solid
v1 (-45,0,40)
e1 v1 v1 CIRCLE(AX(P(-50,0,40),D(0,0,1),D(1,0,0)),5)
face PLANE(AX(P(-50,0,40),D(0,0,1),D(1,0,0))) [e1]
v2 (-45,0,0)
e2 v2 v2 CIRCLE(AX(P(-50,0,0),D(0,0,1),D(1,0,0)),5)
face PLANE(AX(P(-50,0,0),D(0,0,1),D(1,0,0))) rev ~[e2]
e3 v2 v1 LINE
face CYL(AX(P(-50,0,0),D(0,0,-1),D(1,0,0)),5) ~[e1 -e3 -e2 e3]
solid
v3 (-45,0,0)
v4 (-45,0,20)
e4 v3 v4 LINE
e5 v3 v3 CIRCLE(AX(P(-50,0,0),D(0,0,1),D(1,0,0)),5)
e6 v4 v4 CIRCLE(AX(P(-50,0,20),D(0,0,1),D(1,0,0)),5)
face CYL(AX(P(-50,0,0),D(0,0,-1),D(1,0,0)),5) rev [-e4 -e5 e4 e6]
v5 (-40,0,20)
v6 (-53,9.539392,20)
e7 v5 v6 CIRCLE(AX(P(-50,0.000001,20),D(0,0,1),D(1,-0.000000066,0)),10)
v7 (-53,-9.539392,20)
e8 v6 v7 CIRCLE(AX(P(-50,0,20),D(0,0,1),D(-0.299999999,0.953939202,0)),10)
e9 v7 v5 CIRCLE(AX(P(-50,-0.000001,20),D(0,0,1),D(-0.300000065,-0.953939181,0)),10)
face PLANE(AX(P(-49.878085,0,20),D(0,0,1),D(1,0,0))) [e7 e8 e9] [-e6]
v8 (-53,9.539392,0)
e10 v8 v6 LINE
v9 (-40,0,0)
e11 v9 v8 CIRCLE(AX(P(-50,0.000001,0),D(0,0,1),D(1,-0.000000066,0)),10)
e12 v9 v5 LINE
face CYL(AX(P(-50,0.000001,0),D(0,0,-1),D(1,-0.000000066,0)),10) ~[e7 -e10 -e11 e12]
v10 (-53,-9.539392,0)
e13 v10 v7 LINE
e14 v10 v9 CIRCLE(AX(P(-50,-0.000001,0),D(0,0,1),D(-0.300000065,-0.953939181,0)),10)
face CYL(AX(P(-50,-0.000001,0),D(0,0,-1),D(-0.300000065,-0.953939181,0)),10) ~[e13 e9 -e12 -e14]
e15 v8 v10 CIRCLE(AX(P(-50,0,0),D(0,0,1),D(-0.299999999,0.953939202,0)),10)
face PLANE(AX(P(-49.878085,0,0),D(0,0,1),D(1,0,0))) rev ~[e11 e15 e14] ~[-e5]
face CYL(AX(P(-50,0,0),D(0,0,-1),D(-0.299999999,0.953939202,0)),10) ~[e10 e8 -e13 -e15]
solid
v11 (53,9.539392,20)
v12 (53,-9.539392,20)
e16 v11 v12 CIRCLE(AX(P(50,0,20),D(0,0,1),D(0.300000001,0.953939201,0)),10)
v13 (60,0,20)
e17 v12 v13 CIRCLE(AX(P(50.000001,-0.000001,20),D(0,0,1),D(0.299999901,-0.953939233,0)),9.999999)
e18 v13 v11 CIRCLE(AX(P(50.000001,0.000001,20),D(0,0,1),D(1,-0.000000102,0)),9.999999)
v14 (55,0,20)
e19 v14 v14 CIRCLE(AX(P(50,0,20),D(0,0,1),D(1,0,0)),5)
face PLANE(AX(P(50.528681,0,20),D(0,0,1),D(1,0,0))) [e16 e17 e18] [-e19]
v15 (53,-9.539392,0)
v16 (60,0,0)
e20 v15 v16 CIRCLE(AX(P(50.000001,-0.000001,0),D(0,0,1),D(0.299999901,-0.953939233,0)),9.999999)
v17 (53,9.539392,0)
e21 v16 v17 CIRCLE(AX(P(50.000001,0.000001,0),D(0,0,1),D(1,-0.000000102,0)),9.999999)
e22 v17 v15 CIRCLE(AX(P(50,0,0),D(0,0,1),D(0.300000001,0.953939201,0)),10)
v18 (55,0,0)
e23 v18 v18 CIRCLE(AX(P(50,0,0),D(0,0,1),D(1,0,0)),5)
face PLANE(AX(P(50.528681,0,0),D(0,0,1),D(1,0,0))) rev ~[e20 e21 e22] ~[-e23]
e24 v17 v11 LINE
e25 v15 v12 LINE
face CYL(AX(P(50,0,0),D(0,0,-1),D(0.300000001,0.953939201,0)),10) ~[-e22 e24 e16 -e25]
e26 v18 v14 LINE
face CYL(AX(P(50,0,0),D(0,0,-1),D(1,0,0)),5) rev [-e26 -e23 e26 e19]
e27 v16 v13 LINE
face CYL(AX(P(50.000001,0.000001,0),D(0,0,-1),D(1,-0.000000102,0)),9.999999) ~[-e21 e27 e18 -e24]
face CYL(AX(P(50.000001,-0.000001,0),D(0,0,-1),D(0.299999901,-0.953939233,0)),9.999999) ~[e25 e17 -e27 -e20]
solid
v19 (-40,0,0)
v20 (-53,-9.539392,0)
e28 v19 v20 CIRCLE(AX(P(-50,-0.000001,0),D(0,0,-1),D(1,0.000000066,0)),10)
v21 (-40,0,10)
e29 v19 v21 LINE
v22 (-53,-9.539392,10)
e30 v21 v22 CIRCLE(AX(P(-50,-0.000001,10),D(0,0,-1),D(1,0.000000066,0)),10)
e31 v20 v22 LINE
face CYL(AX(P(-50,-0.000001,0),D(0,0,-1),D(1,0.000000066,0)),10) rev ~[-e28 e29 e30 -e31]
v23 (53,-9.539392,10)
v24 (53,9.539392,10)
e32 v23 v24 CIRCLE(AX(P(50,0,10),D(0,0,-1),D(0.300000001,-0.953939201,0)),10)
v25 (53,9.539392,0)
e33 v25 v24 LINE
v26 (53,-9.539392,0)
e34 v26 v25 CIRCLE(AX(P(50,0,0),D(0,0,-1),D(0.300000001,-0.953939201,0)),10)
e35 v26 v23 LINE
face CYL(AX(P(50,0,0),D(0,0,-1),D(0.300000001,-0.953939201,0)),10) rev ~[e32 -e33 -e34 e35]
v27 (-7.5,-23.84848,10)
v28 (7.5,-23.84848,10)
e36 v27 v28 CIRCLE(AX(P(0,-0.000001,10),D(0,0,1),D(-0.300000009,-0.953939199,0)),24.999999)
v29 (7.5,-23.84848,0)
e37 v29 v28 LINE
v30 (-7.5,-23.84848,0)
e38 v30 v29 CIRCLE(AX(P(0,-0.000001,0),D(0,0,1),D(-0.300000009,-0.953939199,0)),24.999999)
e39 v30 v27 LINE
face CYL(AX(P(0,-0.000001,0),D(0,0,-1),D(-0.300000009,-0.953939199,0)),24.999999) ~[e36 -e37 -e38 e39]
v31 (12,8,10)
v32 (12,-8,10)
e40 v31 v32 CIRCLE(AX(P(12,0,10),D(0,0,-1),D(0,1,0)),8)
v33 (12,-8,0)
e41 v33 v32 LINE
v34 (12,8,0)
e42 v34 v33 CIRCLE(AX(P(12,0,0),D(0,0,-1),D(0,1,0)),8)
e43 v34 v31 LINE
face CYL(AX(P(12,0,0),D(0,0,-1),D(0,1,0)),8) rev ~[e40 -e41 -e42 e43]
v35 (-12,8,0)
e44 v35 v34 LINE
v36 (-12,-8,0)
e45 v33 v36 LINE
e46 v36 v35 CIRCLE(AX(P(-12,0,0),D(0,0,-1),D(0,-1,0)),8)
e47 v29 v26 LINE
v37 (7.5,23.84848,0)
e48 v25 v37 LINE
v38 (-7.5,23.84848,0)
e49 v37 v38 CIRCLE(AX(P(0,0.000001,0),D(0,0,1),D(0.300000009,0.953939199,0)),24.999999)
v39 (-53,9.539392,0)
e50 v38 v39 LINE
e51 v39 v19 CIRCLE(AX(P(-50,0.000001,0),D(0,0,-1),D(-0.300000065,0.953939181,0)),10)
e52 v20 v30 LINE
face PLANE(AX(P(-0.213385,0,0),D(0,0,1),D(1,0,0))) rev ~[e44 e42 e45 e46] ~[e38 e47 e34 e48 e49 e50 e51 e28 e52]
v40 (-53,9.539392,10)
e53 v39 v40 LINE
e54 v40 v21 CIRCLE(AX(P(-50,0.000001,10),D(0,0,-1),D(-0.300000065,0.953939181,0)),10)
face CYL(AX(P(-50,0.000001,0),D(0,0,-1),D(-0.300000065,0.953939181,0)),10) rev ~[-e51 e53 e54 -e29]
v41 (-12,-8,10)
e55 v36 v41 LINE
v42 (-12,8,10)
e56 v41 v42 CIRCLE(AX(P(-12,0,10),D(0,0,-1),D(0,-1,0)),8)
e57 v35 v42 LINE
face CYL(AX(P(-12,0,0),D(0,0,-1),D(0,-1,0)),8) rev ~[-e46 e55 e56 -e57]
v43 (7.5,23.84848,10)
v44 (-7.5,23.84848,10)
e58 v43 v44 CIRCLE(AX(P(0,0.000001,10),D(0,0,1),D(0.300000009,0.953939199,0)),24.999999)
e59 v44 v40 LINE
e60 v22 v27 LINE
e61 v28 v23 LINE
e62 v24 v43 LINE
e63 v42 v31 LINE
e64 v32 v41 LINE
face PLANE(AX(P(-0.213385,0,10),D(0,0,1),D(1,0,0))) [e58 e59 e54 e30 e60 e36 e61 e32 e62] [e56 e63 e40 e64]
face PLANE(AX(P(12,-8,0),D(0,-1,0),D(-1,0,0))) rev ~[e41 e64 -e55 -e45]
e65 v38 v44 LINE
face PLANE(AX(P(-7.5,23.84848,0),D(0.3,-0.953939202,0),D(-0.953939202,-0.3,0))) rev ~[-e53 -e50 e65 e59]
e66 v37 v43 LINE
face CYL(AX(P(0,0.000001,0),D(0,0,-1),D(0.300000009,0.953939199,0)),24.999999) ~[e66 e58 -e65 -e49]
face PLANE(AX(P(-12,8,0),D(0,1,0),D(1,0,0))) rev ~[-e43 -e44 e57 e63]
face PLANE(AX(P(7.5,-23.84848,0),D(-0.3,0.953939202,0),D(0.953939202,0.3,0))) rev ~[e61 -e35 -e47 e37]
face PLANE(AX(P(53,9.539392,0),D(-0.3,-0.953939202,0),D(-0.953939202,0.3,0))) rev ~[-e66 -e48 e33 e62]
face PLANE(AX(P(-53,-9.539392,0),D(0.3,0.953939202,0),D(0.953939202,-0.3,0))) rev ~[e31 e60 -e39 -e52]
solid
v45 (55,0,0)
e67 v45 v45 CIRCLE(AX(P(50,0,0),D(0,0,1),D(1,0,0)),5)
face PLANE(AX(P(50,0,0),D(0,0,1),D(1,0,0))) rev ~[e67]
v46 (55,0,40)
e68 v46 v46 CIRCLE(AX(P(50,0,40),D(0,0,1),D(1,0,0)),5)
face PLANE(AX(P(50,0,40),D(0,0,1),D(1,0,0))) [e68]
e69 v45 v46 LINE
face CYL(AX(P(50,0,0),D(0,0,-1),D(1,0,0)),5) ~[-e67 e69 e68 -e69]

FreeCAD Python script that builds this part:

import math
import FreeCAD as App
import Part
import Sketcher

V = App.Vector
Q = App.Units.Quantity

doc = App.newDocument("Part")
body = doc.addObject("PartDesign::Body", "Body")
body.AllowCompound = True

# Sketch on XY plane
sketch1 = body.newObject("Sketcher::SketchObject", "Sketch")
sketch1.AttachmentSupport = (doc.getObject("XY_Plane"), [""])
sketch1.MapMode = "FlatFace"
sketch1.addGeometry([
    Part.ArcOfCircle(Part.Circle(V(-50, 0, 0), V(0, 0, 1), 10), math.radians(107.457603), math.radians(252.542397)),  # 0
    Part.ArcOfCircle(Part.Circle(V(-50, -0.000001, 0), V(0, 0, 1), 10), math.radians(-107.457607), math.radians(0.000004)),  # 1
    Part.ArcOfCircle(Part.Circle(V(-50, 0.000001, 0), V(0, 0, 1), 10), math.radians(-0.000004), math.radians(107.457607)),  # 2
    Part.Circle(V(-50, 0, 0), V(0, 0, 1), 5),  # 3
    Part.ArcOfCircle(Part.Circle(V(50, 0, 0), V(0, 0, 1), 10), math.radians(72.542397), math.radians(287.457603)),  # 4
    Part.ArcOfCircle(Part.Circle(V(50.000001, -0.000001, 0), V(0, 0, 1), 9.999999), math.radians(-72.542403), math.radians(0.000006)),  # 5
    Part.ArcOfCircle(Part.Circle(V(50.000001, 0.000001, 0), V(0, 0, 1), 9.999999), math.radians(-0.000006), math.radians(72.542403)),  # 6
    Part.Circle(V(50, 0, 0), V(0, 0, 1), 5),  # 7
], False)
sketch1.addConstraint([
    Sketcher.Constraint("Tangent", 0, 2, 1, 1),
    Sketcher.Constraint("Tangent", 1, 2, 2, 1),
    Sketcher.Constraint("Tangent", 2, 2, 0, 1),
    Sketcher.Constraint("Tangent", 4, 2, 5, 1),
    Sketcher.Constraint("Tangent", 5, 2, 6, 1),
    Sketcher.Constraint("Tangent", 6, 2, 4, 1),
    Sketcher.Constraint("Coincident", 3, 3, 0, 3),
    Sketcher.Constraint("Coincident", 7, 3, 4, 3),
    Sketcher.Constraint("Equal", 2, 4),
    Sketcher.Constraint("Equal", 3, 7),
    Sketcher.Constraint("Symmetric", 0, 3, 4, 3, -1, 1),
    Sketcher.Constraint("Symmetric", 0, 2, 4, 2, -2),
    Sketcher.Constraint("PointOnObject", 1, 2, -1),
    Sketcher.Constraint("PointOnObject", 5, 2, -1),
    Sketcher.Constraint("Horizontal", 2, 2, 6, 2),
    Sketcher.Constraint("Vertical", 0, 2, 2, 2),
    Sketcher.Constraint("Diameter", 3, Q("10 mm")),
    Sketcher.Constraint("Radius", 0, Q("10 mm")),
    Sketcher.Constraint("DistanceX", 0, 3, -1, 1, Q("50 mm")),
    Sketcher.Constraint("DistanceX", 0, 2, -1, 1, Q("53 mm")),
])
pad1 = body.newObject("PartDesign::Pad", "Pad")
pad1.Profile = sketch1
pad1.Length = 20
body2 = doc.addObject("PartDesign::Body", "Body001")
body2.AllowCompound = True

# Sketch on XY plane
sketch2 = body2.newObject("Sketcher::SketchObject", "Sketch001")
sketch2.AttachmentSupport = (doc.getObject("XY_Plane001"), [""])
sketch2.MapMode = "FlatFace"
sketch2.addGeometry([
    Part.Circle(V(-50, 0, 0), V(0, 0, 1), 5),
    Part.Circle(V(50, 0, 0), V(0, 0, 1), 5),
], False)
sketch2.addConstraint([
    Sketcher.Constraint("Equal", 0, 1),
    Sketcher.Constraint("Symmetric", 0, 3, 1, 3, -1, 1),
    Sketcher.Constraint("PointOnObject", 0, 3, -1),
    Sketcher.Constraint("Diameter", 0, Q("10 mm")),
    Sketcher.Constraint("DistanceX", 0, 3, -1, 1, Q("50 mm")),
])
pad2 = body2.newObject("PartDesign::Pad", "Pad001")
pad2.Profile = sketch2
pad2.Length = 40
body3 = doc.addObject("PartDesign::Body", "Body002")

# Sketch on XY plane
sketch3 = body3.newObject("Sketcher::SketchObject", "Sketch002")
sketch3.AttachmentSupport = (doc.getObject("XY_Plane002"), [""])
sketch3.MapMode = "FlatFace"
sketch3.addGeometry([
    Part.LineSegment(V(-53, -9.539392, 0), V(-7.5, -23.84848, 0)),  # 0
    Part.ArcOfCircle(Part.Circle(V(0, -0.000001, 0), V(0, 0, 1), 24.999999), math.radians(-107.457604), math.radians(-72.542396)),  # 1
    Part.LineSegment(V(7.5, -23.84848, 0), V(53, -9.539392, 0)),  # 2
    Part.ArcOfCircle(Part.Circle(V(50, 0, 0), V(0, 0, 1), 10), math.radians(72.542397), math.radians(287.457603)),  # 3
    Part.LineSegment(V(53, 9.539392, 0), V(7.5, 23.84848, 0)),  # 4
    Part.ArcOfCircle(Part.Circle(V(0, 0.000001, 0), V(0, 0, 1), 24.999999), math.radians(72.542396), math.radians(107.457604)),  # 5
    Part.LineSegment(V(-7.5, 23.84848, 0), V(-53, 9.539392, 0)),  # 6
    Part.ArcOfCircle(Part.Circle(V(-50, 0.000001, 0), V(0, 0, 1), 10), math.radians(-0.000004), math.radians(107.457607)),  # 7
    Part.ArcOfCircle(Part.Circle(V(-50, -0.000001, 0), V(0, 0, 1), 10), math.radians(-107.457607), math.radians(0.000004)),  # 8
    Part.LineSegment(V(12, -8, 0), V(-12, -8, 0)),  # 9
    Part.ArcOfCircle(Part.Circle(V(-12, 0, 0), V(0, 0, 1), 8), math.radians(90), math.radians(270)),  # 10
    Part.LineSegment(V(-12, 8, 0), V(12, 8, 0)),  # 11
    Part.ArcOfCircle(Part.Circle(V(12, 0, 0), V(0, 0, 1), 8), math.radians(-90), math.radians(90)),  # 12
], False)
sketch3.addConstraint([
    Sketcher.Constraint("Tangent", 0, 2, 1, 1),
    Sketcher.Constraint("Tangent", 1, 2, 2, 1),
    Sketcher.Constraint("Tangent", 2, 2, 3, 2),
    Sketcher.Constraint("Tangent", 3, 1, 4, 1),
    Sketcher.Constraint("Tangent", 4, 2, 5, 1),
    Sketcher.Constraint("Tangent", 5, 2, 6, 1),
    Sketcher.Constraint("Tangent", 6, 2, 7, 2),
    Sketcher.Constraint("Tangent", 7, 1, 8, 2),
    Sketcher.Constraint("Tangent", 8, 1, 0, 1),
    Sketcher.Constraint("Tangent", 9, 2, 10, 2),
    Sketcher.Constraint("Tangent", 10, 1, 11, 1),
    Sketcher.Constraint("Tangent", 11, 2, 12, 2),
    Sketcher.Constraint("Tangent", 12, 1, 9, 1),
    Sketcher.Constraint("Horizontal", 9),
    Sketcher.Constraint("Horizontal", 11),
    Sketcher.Constraint("Coincident", 1, 3, -1, 1),
    Sketcher.Constraint("Coincident", 5, 3, -1, 1),
    Sketcher.Constraint("Equal", 1, 5),
    Sketcher.Constraint("Equal", 3, 7),
    Sketcher.Constraint("Equal", 7, 8),
    Sketcher.Constraint("Symmetric", 3, 3, 7, 3, -1, 1),
    Sketcher.Constraint("Symmetric", 10, 3, 12, 3, -1, 1),
    Sketcher.Constraint("PointOnObject", 3, 3, -1),
    Sketcher.Constraint("PointOnObject", 7, 1, -1),
    Sketcher.Constraint("Radius", 1, Q("24.999999 mm")),
    Sketcher.Constraint("Radius", 3, Q("10 mm")),
    Sketcher.Constraint("Radius", 10, Q("8 mm")),
    Sketcher.Constraint("DistanceX", 9, 2, 9, 1, Q("24 mm")),
    Sketcher.Constraint("DistanceX", -1, 1, 3, 3, Q("50 mm")),
])
pad3 = body3.newObject("PartDesign::Pad", "Pad002")
pad3.Profile = sketch3
pad3.Length = 10

doc.recompute()
